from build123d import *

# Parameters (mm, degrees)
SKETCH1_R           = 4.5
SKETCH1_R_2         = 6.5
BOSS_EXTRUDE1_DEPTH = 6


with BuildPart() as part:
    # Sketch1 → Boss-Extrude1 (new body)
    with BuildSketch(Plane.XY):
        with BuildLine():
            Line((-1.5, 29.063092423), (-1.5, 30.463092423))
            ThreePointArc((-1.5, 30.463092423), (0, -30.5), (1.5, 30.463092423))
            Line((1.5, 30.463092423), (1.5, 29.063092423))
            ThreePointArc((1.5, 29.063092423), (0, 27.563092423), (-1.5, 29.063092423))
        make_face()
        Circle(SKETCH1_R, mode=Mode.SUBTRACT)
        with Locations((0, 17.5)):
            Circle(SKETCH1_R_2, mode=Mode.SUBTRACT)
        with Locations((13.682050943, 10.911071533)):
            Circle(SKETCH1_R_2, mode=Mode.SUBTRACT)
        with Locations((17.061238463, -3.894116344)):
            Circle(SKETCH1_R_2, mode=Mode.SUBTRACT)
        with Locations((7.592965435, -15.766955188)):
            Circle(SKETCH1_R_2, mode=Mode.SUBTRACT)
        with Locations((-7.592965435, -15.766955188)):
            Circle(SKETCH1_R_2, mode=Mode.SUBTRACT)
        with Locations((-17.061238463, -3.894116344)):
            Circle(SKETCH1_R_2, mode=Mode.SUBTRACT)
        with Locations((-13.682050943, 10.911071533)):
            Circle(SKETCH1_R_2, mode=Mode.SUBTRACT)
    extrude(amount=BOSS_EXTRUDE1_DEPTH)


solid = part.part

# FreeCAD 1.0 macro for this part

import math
import FreeCAD as App
import Part
import Sketcher

V = App.Vector
Q = App.Units.Quantity

doc = App.newDocument("Part")
body = doc.addObject("PartDesign::Body", "Body")

# Sketch on XY plane
sketch1 = body.newObject("Sketcher::SketchObject", "Sketch")
sketch1.AttachmentSupport = (doc.getObject("XY_Plane"), [""])
sketch1.MapMode = "FlatFace"
sketch1.addGeometry([
    Part.LineSegment(V(-1.5, 29.063092, 0), V(-1.5, 30.463092, 0)),  # 0
    Part.ArcOfCircle(Part.Circle(V(0, 0, 0), V(0, 0, 1), 30.5), math.radians(92.818962), math.radians(447.181038)),  # 1
    Part.LineSegment(V(1.5, 30.463092, 0), V(1.5, 29.063092, 0)),  # 2
    Part.ArcOfCircle(Part.Circle(V(0, 29.063092, 0), V(0, 0, 1), 1.5), math.radians(180), math.radians(360)),  # 3
    Part.Circle(V(-7.592965, -15.766955, 0), V(0, 0, 1), 6.5),  # 4
    Part.Circle(V(-17.061238, -3.894116, 0), V(0, 0, 1), 6.5),  # 5
    Part.Circle(V(7.592965, -15.766955, 0), V(0, 0, 1), 6.5),  # 6
    Part.Circle(V(0, 0, 0), V(0, 0, 1), 4.5),  # 7
    Part.Circle(V(17.061238, -3.894116, 0), V(0, 0, 1), 6.5),  # 8
    Part.Circle(V(-13.682051, 10.911072, 0), V(0, 0, 1), 6.5),  # 9
    Part.Circle(V(13.682051, 10.911072, 0), V(0, 0, 1), 6.5),  # 10
    Part.Circle(V(0, 17.5, 0), V(0, 0, 1), 6.5),  # 11
], False)
sketch1.addConstraint([
    Sketcher.Constraint("Coincident", 0, 2, 1, 1),
    Sketcher.Constraint("Coincident", 1, 2, 2, 1),
    Sketcher.Constraint("Tangent", 2, 2, 3, 2),
    Sketcher.Constraint("Tangent", 3, 1, 0, 1),
    Sketcher.Constraint("Vertical", 0),
    Sketcher.Constraint("Vertical", 2),
    Sketcher.Constraint("Coincident", 1, 3, -1, 1),
    Sketcher.Constraint("Coincident", 7, 3, -1, 1),
    Sketcher.Constraint("Equal", 4, 5),
    Sketcher.Constraint("Equal", 5, 6),
    Sketcher.Constraint("Equal", 6, 8),
    Sketcher.Constraint("Equal", 8, 9),
    Sketcher.Constraint("Equal", 9, 10),
    Sketcher.Constraint("Equal", 10, 11),
    Sketcher.Constraint("Symmetric", 4, 3, 6, 3, -2),
    Sketcher.Constraint("Symmetric", 5, 3, 8, 3, -2),
    Sketcher.Constraint("Symmetric", 9, 3, 10, 3, -2),
    Sketcher.Constraint("PointOnObject", 3, 3, -2),
    Sketcher.Constraint("PointOnObject", 11, 3, -2),
    Sketcher.Constraint("Diameter", 4, Q("13 mm")),
    Sketcher.Constraint("Diameter", 7, Q("9 mm")),
    Sketcher.Constraint("Radius", 1, Q("30.5 mm")),
    Sketcher.Constraint("Radius", 3, Q("1.5 mm")),
    Sketcher.Constraint("DistanceY", 0, 1, 0, 2, Q("1.4 mm")),
    Sketcher.Constraint("DistanceY", -1, 1, 11, 3, Q("17.5 mm")),
    Sketcher.Constraint("DistanceX", 9, 3, 10, 3, Q("27.364102 mm")),
    Sketcher.Constraint("DistanceX", 5, 3, -1, 1, Q("17.061238 mm")),
    Sketcher.Constraint("DistanceY", -1, 1, 9, 3, Q("10.911072 mm")),
    Sketcher.Constraint("DistanceY", 4, 3, 5, 3, Q("11.872839 mm")),
    Sketcher.Constraint("DistanceY", 5, 3, 3, 3, Q("32.957209 mm")),
    Sketcher.Constraint("DistanceX", 4, 3, 6, 3, Q("15.185931 mm")),
])
pad1 = body.newObject("PartDesign::Pad", "Pad")
pad1.Profile = sketch1
pad1.Length = 6

doc.recompute()
